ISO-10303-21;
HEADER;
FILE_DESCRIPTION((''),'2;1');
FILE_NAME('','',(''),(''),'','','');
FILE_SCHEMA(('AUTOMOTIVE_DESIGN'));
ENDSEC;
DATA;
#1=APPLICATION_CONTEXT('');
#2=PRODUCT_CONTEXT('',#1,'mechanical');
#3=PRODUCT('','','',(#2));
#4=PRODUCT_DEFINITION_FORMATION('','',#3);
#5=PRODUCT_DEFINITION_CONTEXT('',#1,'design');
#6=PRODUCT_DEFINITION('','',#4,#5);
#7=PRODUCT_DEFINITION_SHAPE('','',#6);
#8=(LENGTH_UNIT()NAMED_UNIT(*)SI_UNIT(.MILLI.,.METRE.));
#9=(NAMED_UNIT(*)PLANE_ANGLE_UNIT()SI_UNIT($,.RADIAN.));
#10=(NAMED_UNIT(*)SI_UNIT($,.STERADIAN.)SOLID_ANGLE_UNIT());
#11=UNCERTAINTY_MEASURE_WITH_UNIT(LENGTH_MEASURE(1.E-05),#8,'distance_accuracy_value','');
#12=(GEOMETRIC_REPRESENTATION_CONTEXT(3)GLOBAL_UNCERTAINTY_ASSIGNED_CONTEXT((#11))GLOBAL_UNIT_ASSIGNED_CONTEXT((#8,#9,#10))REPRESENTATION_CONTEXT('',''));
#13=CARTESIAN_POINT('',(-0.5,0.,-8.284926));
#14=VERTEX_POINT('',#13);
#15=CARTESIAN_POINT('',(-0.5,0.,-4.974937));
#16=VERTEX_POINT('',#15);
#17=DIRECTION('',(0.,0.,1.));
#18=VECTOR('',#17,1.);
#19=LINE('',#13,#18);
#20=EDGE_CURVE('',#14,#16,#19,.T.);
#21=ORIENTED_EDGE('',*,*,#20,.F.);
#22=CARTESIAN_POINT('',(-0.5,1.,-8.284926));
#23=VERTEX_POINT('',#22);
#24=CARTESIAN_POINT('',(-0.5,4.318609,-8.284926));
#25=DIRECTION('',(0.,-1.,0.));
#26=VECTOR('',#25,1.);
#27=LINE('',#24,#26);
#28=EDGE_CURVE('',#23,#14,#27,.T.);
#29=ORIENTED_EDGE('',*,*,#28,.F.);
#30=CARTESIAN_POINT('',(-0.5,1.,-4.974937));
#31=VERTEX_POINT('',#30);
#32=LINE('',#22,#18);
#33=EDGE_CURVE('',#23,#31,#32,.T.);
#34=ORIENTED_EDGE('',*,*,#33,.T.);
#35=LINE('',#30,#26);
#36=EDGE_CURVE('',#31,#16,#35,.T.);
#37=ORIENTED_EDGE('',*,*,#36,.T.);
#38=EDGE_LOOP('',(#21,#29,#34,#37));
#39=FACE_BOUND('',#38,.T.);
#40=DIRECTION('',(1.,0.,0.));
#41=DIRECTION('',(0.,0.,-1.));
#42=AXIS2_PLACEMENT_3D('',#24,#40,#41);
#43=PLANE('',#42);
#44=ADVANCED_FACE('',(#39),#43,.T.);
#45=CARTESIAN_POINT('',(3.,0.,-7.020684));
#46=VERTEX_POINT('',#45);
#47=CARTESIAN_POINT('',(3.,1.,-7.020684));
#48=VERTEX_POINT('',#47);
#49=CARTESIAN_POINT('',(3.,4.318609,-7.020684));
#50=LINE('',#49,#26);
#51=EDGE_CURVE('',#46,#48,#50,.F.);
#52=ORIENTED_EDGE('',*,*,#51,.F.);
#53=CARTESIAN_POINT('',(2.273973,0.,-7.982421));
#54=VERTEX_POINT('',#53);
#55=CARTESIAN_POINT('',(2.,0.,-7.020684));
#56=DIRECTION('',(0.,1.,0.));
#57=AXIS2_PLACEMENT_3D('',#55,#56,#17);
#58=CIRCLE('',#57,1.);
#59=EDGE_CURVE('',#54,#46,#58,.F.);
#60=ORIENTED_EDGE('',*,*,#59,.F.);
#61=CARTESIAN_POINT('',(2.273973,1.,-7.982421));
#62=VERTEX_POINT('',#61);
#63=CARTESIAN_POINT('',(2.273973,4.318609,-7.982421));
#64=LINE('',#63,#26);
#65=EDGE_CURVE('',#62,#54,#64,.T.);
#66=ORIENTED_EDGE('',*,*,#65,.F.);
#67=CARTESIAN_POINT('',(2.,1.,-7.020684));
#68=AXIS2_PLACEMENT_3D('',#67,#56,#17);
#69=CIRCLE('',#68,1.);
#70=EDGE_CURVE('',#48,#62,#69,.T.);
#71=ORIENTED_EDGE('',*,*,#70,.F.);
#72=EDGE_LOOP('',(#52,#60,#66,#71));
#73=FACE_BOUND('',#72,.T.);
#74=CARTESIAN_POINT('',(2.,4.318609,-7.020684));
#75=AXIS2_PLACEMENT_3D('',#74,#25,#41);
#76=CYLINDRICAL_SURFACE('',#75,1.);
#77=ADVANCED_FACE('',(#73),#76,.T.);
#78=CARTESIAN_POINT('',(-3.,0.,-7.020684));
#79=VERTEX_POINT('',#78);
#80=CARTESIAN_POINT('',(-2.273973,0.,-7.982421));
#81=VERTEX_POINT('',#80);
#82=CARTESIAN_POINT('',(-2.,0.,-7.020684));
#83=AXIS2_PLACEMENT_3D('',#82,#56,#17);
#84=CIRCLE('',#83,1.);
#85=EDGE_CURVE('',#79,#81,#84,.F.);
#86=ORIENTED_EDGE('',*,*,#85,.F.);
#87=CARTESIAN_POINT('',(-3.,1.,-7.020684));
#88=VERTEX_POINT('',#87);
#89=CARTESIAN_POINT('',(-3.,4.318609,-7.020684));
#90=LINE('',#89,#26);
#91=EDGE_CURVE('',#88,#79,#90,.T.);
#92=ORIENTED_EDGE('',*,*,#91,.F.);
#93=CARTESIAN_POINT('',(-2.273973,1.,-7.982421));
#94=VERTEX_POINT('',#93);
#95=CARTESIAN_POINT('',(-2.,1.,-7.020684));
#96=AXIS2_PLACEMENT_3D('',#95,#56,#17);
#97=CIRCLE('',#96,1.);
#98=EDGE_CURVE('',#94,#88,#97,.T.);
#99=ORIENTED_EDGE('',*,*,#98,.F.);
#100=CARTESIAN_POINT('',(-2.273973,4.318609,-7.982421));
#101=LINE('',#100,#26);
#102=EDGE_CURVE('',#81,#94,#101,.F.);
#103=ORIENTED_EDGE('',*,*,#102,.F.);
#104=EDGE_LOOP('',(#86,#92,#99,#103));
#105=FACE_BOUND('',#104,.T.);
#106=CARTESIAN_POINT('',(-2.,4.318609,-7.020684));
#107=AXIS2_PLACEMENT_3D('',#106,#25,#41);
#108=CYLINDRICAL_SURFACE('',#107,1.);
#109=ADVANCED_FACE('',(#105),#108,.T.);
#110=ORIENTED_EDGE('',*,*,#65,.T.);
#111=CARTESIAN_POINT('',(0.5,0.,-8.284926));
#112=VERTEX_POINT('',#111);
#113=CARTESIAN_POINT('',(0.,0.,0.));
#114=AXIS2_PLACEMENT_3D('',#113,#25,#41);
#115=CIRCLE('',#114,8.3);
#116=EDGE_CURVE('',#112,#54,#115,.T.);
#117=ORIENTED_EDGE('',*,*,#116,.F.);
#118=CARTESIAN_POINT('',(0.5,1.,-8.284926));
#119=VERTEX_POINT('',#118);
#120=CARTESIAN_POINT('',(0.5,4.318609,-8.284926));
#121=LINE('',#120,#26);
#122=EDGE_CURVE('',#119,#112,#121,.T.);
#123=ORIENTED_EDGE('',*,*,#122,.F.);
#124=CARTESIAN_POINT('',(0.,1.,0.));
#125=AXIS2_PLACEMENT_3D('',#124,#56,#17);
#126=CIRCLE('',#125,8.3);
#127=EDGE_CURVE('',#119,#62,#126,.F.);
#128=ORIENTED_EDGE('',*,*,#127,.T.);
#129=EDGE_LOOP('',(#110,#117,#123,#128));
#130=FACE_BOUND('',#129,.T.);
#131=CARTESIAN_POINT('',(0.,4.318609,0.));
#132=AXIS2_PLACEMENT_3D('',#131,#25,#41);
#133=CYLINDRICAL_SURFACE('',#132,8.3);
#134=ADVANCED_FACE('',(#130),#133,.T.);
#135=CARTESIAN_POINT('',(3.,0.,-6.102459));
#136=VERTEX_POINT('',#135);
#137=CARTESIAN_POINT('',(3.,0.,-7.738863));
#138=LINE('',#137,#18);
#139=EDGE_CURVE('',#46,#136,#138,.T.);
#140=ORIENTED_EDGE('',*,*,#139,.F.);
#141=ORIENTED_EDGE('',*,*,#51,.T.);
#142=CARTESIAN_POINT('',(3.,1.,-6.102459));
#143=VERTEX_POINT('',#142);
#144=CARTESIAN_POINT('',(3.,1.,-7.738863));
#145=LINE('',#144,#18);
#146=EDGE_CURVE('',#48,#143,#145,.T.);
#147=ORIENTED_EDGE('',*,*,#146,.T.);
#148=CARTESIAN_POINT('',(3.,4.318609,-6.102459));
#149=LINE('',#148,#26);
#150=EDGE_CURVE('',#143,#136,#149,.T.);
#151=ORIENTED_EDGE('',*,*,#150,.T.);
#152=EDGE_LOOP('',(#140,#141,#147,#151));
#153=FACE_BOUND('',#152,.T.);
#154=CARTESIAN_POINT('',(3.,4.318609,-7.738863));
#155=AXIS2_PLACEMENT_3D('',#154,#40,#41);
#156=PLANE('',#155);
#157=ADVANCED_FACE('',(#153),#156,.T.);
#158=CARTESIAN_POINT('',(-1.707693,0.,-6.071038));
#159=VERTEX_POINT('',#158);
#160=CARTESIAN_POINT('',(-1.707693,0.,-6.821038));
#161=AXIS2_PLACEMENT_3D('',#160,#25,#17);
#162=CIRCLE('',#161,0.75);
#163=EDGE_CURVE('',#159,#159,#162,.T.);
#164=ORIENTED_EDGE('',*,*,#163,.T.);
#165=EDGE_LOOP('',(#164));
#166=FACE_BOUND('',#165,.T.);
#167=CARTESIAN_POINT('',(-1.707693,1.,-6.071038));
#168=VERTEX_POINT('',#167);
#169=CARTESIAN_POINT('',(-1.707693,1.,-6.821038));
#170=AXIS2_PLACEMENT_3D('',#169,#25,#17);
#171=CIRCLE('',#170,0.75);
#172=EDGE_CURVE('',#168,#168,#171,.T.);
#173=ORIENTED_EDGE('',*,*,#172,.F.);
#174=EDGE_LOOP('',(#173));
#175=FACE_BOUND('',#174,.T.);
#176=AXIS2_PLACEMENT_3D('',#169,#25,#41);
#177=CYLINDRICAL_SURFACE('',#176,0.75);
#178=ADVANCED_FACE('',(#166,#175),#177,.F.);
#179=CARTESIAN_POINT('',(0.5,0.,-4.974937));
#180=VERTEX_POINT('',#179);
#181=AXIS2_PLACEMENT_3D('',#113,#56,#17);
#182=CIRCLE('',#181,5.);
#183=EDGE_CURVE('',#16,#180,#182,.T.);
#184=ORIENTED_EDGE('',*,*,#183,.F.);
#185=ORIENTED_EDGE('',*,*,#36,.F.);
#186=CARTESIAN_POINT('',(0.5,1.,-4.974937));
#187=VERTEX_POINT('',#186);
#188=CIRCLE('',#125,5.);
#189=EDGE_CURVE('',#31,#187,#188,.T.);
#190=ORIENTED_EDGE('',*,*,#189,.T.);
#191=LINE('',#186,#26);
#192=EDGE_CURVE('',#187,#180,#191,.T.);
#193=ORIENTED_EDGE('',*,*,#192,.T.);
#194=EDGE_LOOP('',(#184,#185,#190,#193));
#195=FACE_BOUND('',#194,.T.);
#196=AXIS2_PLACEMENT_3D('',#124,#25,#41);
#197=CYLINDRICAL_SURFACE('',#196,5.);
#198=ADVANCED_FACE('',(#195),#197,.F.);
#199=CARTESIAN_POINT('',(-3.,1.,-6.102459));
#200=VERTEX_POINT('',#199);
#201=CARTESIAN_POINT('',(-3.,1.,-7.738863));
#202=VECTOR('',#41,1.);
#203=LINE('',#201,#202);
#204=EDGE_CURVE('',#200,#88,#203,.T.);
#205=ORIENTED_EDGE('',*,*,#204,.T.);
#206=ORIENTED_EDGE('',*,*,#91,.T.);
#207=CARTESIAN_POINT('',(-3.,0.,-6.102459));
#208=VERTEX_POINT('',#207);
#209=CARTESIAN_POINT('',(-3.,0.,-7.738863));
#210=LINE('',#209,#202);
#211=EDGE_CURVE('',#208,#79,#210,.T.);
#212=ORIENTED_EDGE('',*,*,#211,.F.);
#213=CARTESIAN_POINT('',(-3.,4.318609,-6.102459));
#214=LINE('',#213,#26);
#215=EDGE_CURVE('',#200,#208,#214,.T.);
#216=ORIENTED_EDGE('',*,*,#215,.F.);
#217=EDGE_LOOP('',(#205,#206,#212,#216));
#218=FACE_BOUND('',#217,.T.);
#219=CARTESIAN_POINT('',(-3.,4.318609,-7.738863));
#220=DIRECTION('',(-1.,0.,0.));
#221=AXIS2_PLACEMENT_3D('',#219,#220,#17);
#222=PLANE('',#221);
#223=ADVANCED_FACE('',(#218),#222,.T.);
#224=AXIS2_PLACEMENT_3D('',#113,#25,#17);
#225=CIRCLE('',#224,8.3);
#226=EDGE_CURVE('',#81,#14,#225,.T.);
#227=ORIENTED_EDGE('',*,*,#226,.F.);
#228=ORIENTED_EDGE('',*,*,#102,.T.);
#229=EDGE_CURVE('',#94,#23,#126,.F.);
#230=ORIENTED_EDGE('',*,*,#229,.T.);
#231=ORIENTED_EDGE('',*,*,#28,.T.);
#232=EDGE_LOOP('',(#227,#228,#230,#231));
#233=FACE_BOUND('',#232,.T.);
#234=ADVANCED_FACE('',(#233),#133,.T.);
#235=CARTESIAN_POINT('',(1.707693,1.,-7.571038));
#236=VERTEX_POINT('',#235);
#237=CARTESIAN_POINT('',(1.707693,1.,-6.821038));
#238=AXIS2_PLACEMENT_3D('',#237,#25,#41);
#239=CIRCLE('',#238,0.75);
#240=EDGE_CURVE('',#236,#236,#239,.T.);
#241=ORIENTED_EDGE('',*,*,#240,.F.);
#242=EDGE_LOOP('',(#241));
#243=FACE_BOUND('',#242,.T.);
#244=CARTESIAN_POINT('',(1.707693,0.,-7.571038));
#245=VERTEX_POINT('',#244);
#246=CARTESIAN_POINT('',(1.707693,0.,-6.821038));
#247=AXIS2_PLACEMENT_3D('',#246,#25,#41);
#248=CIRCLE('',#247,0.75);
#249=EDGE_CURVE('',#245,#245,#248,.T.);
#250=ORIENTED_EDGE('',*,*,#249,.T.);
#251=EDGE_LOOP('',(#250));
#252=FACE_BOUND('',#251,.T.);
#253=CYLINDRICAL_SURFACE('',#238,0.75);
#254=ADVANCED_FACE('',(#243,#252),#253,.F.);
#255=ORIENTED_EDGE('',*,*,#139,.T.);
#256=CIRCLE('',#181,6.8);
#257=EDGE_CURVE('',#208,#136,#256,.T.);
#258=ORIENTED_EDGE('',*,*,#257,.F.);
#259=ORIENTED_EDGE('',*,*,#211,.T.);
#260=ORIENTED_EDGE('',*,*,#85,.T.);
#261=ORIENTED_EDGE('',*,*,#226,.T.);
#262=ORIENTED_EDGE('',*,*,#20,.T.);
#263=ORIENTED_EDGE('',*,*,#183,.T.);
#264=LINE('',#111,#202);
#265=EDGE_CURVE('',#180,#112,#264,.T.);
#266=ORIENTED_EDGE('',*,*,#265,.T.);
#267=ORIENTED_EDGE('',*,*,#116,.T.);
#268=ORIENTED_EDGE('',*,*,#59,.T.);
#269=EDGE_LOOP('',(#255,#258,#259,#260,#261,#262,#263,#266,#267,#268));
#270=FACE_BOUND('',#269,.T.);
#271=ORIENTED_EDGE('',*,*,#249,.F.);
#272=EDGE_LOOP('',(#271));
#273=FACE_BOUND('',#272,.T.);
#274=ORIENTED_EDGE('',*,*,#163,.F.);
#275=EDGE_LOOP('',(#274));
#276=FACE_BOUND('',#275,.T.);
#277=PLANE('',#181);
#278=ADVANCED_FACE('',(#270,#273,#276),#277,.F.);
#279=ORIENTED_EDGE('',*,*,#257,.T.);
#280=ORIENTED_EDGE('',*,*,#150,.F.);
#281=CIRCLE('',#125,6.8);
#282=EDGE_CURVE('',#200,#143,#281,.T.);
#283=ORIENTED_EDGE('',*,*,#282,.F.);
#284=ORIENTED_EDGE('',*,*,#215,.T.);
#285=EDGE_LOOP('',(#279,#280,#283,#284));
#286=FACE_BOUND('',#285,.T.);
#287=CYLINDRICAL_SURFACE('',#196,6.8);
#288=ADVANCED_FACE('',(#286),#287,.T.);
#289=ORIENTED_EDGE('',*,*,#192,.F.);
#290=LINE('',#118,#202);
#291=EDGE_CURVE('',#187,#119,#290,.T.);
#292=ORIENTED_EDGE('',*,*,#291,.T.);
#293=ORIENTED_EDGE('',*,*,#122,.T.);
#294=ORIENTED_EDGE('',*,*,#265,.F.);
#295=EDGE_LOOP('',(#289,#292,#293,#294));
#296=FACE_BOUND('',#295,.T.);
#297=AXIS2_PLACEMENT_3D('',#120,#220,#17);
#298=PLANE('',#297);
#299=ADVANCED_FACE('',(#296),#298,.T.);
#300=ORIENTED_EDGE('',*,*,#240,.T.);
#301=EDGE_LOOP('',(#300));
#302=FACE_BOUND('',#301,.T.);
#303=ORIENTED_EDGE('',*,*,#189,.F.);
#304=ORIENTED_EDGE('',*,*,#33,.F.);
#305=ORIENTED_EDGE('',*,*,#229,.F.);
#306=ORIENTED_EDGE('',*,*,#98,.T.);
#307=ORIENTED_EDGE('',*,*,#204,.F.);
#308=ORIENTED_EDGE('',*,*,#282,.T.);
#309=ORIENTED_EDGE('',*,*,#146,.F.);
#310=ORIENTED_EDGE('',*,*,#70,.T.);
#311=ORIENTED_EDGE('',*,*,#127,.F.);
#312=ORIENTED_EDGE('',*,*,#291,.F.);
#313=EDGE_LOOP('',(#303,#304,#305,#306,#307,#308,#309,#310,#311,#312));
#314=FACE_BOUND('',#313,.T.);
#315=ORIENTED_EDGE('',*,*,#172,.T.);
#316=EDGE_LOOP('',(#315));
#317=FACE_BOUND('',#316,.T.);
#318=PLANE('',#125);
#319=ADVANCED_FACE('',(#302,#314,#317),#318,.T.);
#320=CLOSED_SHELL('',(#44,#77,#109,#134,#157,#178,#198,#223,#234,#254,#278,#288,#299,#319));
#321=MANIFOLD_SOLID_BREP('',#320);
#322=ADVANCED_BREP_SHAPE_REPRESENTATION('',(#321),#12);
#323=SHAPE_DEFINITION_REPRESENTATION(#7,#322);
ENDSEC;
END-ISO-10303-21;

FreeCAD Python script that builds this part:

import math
import FreeCAD as App
import Part
import Sketcher
from FreeCAD import Vector
Q = App.Units.Quantity


def edges_at(feature, points):
    """Names of the edges that pass closest to the given points."""
    edges = feature.Shape.Edges
    near = lambda p: min(range(len(edges)), key=lambda i: edges[i].distToShape(Part.Vertex(*p))[0])
    return sorted({f"Edge{near(p) + 1}" for p in points})

doc = App.newDocument("Part")
body = doc.addObject("PartDesign::Body", "Body")

sketch1 = body.newObject("Sketcher::SketchObject", "Sketch")
sketch1.AttachmentSupport = (doc.getObject("XZ_Plane"), [""])
sketch1.MapMode = "FlatFace"
sketch1.addGeometry([
    Part.Circle(Vector(0, 0, 0), Vector(0, 0, 1), 7),
    Part.Circle(Vector(0, 0, 0), Vector(0, 0, 1), 5),
], False)
sketch1.addConstraint([
    Sketcher.Constraint("Coincident", 0, 3, -1, 1),
    Sketcher.Constraint("Coincident", 1, 3, -1, 1),
    Sketcher.Constraint("Diameter", 1, Q("10 mm")),
    Sketcher.Constraint("Diameter", 0, Q("13.6 mm")),
])
pad1 = body.newObject("PartDesign::Pad", "Pad")
pad1.Profile = sketch1
pad1.Length = 1
pad1.Reversed = True

sketch2 = body.newObject("Sketcher::SketchObject", "Sketch001")
sketch2.AttachmentSupport = (doc.getObject("XZ_Plane"), [""])
sketch2.MapMode = "FlatFace"
sketch2.addGeometry([
    Part.LineSegment(Vector(3, -7.7, 0), Vector(3, -6.1, 0)),
    Part.ArcOfCircle(Part.Circle(Vector(0, 0, 0), Vector(0, 0, 1), 6.8), math.radians(-86), math.radians(-64)),
    Part.LineSegment(Vector(0.5, -6.8, 0), Vector(0.5, -8.3, 0)),
    Part.ArcOfCircle(Part.Circle(Vector(0, 0, 0), Vector(0, 0, 1), 8.3), math.radians(-86.55), math.radians(-68.81)),
    Part.LineSegment(Vector(-0.5, -8.3, 0), Vector(-0.5, -6.8, 0)),
    Part.ArcOfCircle(Part.Circle(Vector(0, 0, 0), Vector(0, 0, 1), 6.8), math.radians(-116), math.radians(-94)),
    Part.LineSegment(Vector(-3, -6.1, 0), Vector(-3, -7.7, 0)),
    Part.ArcOfCircle(Part.Circle(Vector(0, 0, 0), Vector(0, 0, 1), 8.3), math.radians(-111.19), math.radians(-93.45)),
], False)
sketch2.addConstraint([
    Sketcher.Constraint("Coincident", 0, 2, 1, 2),
    Sketcher.Constraint("Coincident", 1, 1, 2, 1),
    Sketcher.Constraint("Coincident", 2, 2, 3, 1),
    Sketcher.Constraint("Coincident", 3, 2, 0, 1),
    Sketcher.Constraint("Coincident", 4, 2, 5, 2),
    Sketcher.Constraint("Coincident", 5, 1, 6, 1),
    Sketcher.Constraint("Coincident", 6, 2, 7, 1),
    Sketcher.Constraint("Coincident", 7, 2, 4, 1),
    Sketcher.Constraint("Vertical", 0),
    Sketcher.Constraint("Vertical", 2),
    Sketcher.Constraint("Vertical", 4),
    Sketcher.Constraint("Vertical", 6),
    Sketcher.Constraint("Coincident", 1, 3, -1, 1),
    Sketcher.Constraint("Coincident", 3, 3, -1, 1),
    Sketcher.Constraint("Coincident", 5, 3, -1, 1),
    Sketcher.Constraint("Coincident", 7, 3, -1, 1),
    Sketcher.Constraint("Equal", 1, 5),
    Sketcher.Constraint("Equal", 3, 7),
    Sketcher.Constraint("Horizontal", 1, 1, 4, 2),
    Sketcher.Constraint("Horizontal", 0, 2, 5, 1),
    Sketcher.Constraint("Radius", 1, Q("6.8 mm")),
    Sketcher.Constraint("Radius", 3, Q("8.3 mm")),
    Sketcher.Constraint("DistanceX", -1, 1, 0, 2, Q("3 mm")),
    Sketcher.Constraint("DistanceX", 4, 2, 1, 1, Q("1 mm")),
])
pad2 = body.newObject("PartDesign::Pad", "Pad001")
pad2.Profile = sketch2
pad2.Length = 1
pad2.Reversed = True
doc.recompute()

fillet = body.newObject("PartDesign::Fillet", "Fillet")
fillet.Base = (pad2, edges_at(pad2, [(3, 0.5, -7.739), (-3, 0.5, -7.739)]))
fillet.Radius = 1

sketch3 = body.newObject("Sketcher::SketchObject", "Sketch002")
sketch3.AttachmentSupport = (doc.getObject("XZ_Plane"), [""])
sketch3.MapMode = "FlatFace"
sketch3.addGeometry([
    Part.LineSegment(Vector(-0.5, -5, 0), Vector(-0.5, -8.3, 0)),
    Part.LineSegment(Vector(-0.5, -8.3, 0), Vector(0.5, -8.3, 0)),
    Part.LineSegment(Vector(0.5, -8.3, 0), Vector(0.5, -5, 0)),
    Part.LineSegment(Vector(0.5, -5, 0), Vector(-0.5, -5, 0)),
], False)
sketch3.addConstraint([
    Sketcher.Constraint("Coincident", 0, 2, 1, 1),
    Sketcher.Constraint("Coincident", 1, 2, 2, 1),
    Sketcher.Constraint("Coincident", 2, 2, 3, 1),
    Sketcher.Constraint("Coincident", 3, 2, 0, 1),
    Sketcher.Constraint("Vertical", 0),
    Sketcher.Constraint("Horizontal", 1),
    Sketcher.Constraint("Vertical", 2),
    Sketcher.Constraint("Horizontal", 3),
    Sketcher.Constraint("DistanceX", 1, 1, 1, 2, Q("1 mm")),
    Sketcher.Constraint("DistanceX", 0, 2, -1, 1, Q("0.5 mm")),
    Sketcher.Constraint("DistanceY", 0, 2, 0, 1, Q("3.309989 mm")),
    Sketcher.Constraint("DistanceY", 0, 2, -1, 1, Q("8.284926 mm")),
])
pocket1 = body.newObject("PartDesign::Pocket", "Pocket")
pocket1.Profile = sketch3
pocket1.Type = "ThroughAll"

sketch4 = body.newObject("Sketcher::SketchObject", "Sketch003")
sketch4.AttachmentSupport = (doc.getObject("XZ_Plane"), [""])
sketch4.MapMode = "FlatFace"
sketch4.addGeometry([
    Part.Circle(Vector(1.7, -6.8, 0), Vector(0, 0, 1), 0.8),
    Part.Circle(Vector(-1.7, -6.8, 0), Vector(0, 0, 1), 0.8),
], False)
sketch4.addConstraint([
    Sketcher.Constraint("Equal", 0, 1),
    Sketcher.Constraint("Symmetric", 0, 3, 1, 3, -2),
    Sketcher.Constraint("Diameter", 0, Q("1.5 mm")),
    Sketcher.Constraint("DistanceY", 0, 3, -1, 1, Q("6.821038 mm")),
    Sketcher.Constraint("DistanceX", -1, 1, 0, 3, Q("1.707693 mm")),
])
pocket2 = body.newObject("PartDesign::Pocket", "Pocket001")
pocket2.Profile = sketch4
pocket2.Type = "ThroughAll"

doc.recompute()
